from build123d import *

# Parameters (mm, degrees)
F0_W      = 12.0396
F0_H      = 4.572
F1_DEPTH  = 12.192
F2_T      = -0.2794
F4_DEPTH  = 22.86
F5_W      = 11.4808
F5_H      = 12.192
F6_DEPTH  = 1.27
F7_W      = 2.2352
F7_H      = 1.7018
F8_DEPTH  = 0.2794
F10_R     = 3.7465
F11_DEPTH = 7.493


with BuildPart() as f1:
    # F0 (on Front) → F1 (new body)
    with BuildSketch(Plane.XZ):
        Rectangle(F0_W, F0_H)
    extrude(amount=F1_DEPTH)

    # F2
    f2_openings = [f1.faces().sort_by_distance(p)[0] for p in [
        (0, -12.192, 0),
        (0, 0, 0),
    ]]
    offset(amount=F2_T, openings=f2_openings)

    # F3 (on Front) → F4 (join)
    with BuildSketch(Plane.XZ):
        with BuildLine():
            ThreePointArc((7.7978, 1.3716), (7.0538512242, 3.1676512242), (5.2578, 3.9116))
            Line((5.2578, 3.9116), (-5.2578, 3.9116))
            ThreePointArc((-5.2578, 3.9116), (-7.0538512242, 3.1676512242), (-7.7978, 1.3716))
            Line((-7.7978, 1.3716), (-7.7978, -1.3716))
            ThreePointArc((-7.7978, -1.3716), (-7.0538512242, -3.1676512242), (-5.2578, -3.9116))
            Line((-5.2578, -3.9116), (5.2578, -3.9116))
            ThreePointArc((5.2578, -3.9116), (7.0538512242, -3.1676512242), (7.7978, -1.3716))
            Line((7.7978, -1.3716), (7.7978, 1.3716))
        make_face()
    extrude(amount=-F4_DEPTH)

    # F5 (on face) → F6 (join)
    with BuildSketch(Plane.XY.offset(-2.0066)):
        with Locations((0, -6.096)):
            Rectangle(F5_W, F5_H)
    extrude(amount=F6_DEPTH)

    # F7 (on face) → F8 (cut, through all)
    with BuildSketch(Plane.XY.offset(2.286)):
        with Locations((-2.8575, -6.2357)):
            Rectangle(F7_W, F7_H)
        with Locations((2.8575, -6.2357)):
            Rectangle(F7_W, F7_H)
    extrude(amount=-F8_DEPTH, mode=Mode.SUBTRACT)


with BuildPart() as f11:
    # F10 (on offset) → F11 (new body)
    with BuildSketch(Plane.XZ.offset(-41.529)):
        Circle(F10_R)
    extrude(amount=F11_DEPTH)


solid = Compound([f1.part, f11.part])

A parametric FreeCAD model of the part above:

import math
import FreeCAD as App
import Part
import Sketcher
from FreeCAD import Vector
Q = App.Units.Quantity


def faces_at(feature, points):
    """Names of the faces that lie closest to the given points."""
    faces = feature.Shape.Faces
    near = lambda p: min(range(len(faces)), key=lambda i: faces[i].distToShape(Part.Vertex(*p))[0])
    return sorted({f"Face{near(p) + 1}" for p in points})

doc = App.newDocument("Part")
params = doc.addObject("Spreadsheet::Sheet", "Params")
for row, (alias, value) in enumerate([
    ("sketch1_height", "0.18 in"),
    ("sketch1_width", "0.474 in"),
    ("pad1_length", "0.48 in"),
    ("thickness_wall", "0.011 in"),
    ("sketch2_radius", "0.1 in"),
    ("sketch2_width", "0.414 in"),
    ("sketch2_height", "0.108 in"),
    ("pad2_length", "0.9 in"),
    ("sketch3_height", "0.48 in"),
    ("sketch3_width", "0.452 in"),
    ("pad3_length", "0.05 in"),
    ("sketch4_width", "0.088 in"),
    ("sketch4_height", "0.067 in"),
    ("pocket1_length", "0.011 in"),
    ("sketch5_diameter", "0.295 in"),
    ("pad4_length", "0.295 in"),
], start=1):
    params.set(f"A{row}", alias)
    params.set(f"B{row}", "=" + value)
    params.setAlias(f"B{row}", alias)

body = doc.addObject("PartDesign::Body", "Body")

# Sketch on XZ plane
sketch1 = body.newObject("Sketcher::SketchObject", "Sketch")
sketch1.AttachmentSupport = (doc.getObject("XZ_Plane"), [""])
sketch1.MapMode = "FlatFace"
sketch1.addGeometry(Part.LineSegment(Vector(-6, 2.3, 0), Vector(-6, -2.3, 0)), False)
sketch1.addGeometry(Part.LineSegment(Vector(-6, -2.3, 0), Vector(6, -2.3, 0)), False)
sketch1.addGeometry(Part.LineSegment(Vector(6, -2.3, 0), Vector(6, 2.3, 0)), False)
sketch1.addGeometry(Part.LineSegment(Vector(6, 2.3, 0), Vector(-6, 2.3, 0)), False)
sketch1.addConstraint(Sketcher.Constraint("Coincident", 0, 2, 1, 1))
sketch1.addConstraint(Sketcher.Constraint("Coincident", 1, 2, 2, 1))
sketch1.addConstraint(Sketcher.Constraint("Coincident", 2, 2, 3, 1))
sketch1.addConstraint(Sketcher.Constraint("Coincident", 3, 2, 0, 1))
sketch1.addConstraint(Sketcher.Constraint("Vertical", 0))
sketch1.addConstraint(Sketcher.Constraint("Horizontal", 1))
sketch1.addConstraint(Sketcher.Constraint("Vertical", 2))
sketch1.addConstraint(Sketcher.Constraint("Horizontal", 3))
sketch1.addConstraint(Sketcher.Constraint("Symmetric", 0, 2, 2, 2, -1, 1))
sketch1.addConstraint(Sketcher.Constraint("DistanceY", 0, 2, 0, 1, Q("0.18 in")))
sketch1.addConstraint(Sketcher.Constraint("DistanceX", 1, 1, 1, 2, Q("0.474 in")))
sketch1.setExpression("Constraints[9]", "Params.sketch1_height")
sketch1.setExpression("Constraints[10]", "Params.sketch1_width")
pad1 = body.newObject("PartDesign::Pad", "Pad")
pad1.Profile = sketch1
pad1.setExpression("Length", "Params.pad1_length")
doc.recompute()

thickness = body.newObject("PartDesign::Thickness", "Thickness")
thickness.Base = (pad1, faces_at(pad1, [(0, -12.192, 0), (0, 0, 0)]))
thickness.setExpression("Value", "Params.thickness_wall")
thickness.Reversed = True
thickness.Join = "Arc"

# Sketch on XZ plane
sketch2 = body.newObject("Sketcher::SketchObject", "Sketch001")
sketch2.AttachmentSupport = (doc.getObject("XZ_Plane"), [""])
sketch2.MapMode = "FlatFace"
sketch2.addGeometry(Part.ArcOfCircle(Part.Circle(Vector(5.3, 1.4, 0), Vector(0, 0, 1), 2.5), math.radians(0), math.radians(90)), False)
sketch2.addGeometry(Part.LineSegment(Vector(5.3, 3.9, 0), Vector(-5.3, 3.9, 0)), False)
sketch2.addGeometry(Part.ArcOfCircle(Part.Circle(Vector(-5.3, 1.4, 0), Vector(0, 0, 1), 2.5), math.radians(90), math.radians(180)), False)
sketch2.addGeometry(Part.LineSegment(Vector(-7.8, 1.4, 0), Vector(-7.8, -1.4, 0)), False)
sketch2.addGeometry(Part.ArcOfCircle(Part.Circle(Vector(-5.3, -1.4, 0), Vector(0, 0, 1), 2.5), math.radians(180), math.radians(270)), False)
sketch2.addGeometry(Part.LineSegment(Vector(-5.3, -3.9, 0), Vector(5.3, -3.9, 0)), False)
sketch2.addGeometry(Part.ArcOfCircle(Part.Circle(Vector(5.3, -1.4, 0), Vector(0, 0, 1), 2.5), math.radians(-90), math.radians(0)), False)
sketch2.addGeometry(Part.LineSegment(Vector(7.8, -1.4, 0), Vector(7.8, 1.4, 0)), False)
sketch2.addConstraint(Sketcher.Constraint("Tangent", 0, 2, 1, 1))
sketch2.addConstraint(Sketcher.Constraint("Tangent", 1, 2, 2, 1))
sketch2.addConstraint(Sketcher.Constraint("Tangent", 2, 2, 3, 1))
sketch2.addConstraint(Sketcher.Constraint("Tangent", 3, 2, 4, 1))
sketch2.addConstraint(Sketcher.Constraint("Tangent", 4, 2, 5, 1))
sketch2.addConstraint(Sketcher.Constraint("Tangent", 5, 2, 6, 1))
sketch2.addConstraint(Sketcher.Constraint("Tangent", 6, 2, 7, 1))
sketch2.addConstraint(Sketcher.Constraint("Tangent", 7, 2, 0, 1))
sketch2.addConstraint(Sketcher.Constraint("Horizontal", 1))
sketch2.addConstraint(Sketcher.Constraint("Vertical", 3))
sketch2.addConstraint(Sketcher.Constraint("Horizontal", 5))
sketch2.addConstraint(Sketcher.Constraint("Vertical", 7))
sketch2.addConstraint(Sketcher.Constraint("Equal", 0, 2))
sketch2.addConstraint(Sketcher.Constraint("Equal", 2, 4))
sketch2.addConstraint(Sketcher.Constraint("Equal", 4, 6))
sketch2.addConstraint(Sketcher.Constraint("Symmetric", 0, 3, 4, 3, -1, 1))
sketch2.addConstraint(Sketcher.Constraint("Radius", 0, Q("0.1 in")))
sketch2.addConstraint(Sketcher.Constraint("DistanceX", 1, 2, 1, 1, Q("0.414 in")))
sketch2.addConstraint(Sketcher.Constraint("DistanceY", 3, 2, 3, 1, Q("0.108 in")))
sketch2.setExpression("Constraints[16]", "Params.sketch2_radius")
sketch2.setExpression("Constraints[17]", "Params.sketch2_width")
sketch2.setExpression("Constraints[18]", "Params.sketch2_height")
pad2 = body.newObject("PartDesign::Pad", "Pad001")
pad2.Profile = sketch2
pad2.setExpression("Length", "Params.pad2_length")
pad2.Reversed = True

# Sketch on XY plane
sketch3 = body.newObject("Sketcher::SketchObject", "Sketch002")
sketch3.AttachmentSupport = (doc.getObject("XY_Plane"), [""])
sketch3.MapMode = "FlatFace"
sketch3.AttachmentOffset = App.Placement(Vector(0, 0, -0.079 * 25.4), App.Rotation())
sketch3.addGeometry(Part.LineSegment(Vector(-6, 0, 0), Vector(-6, -12, 0)), False)
sketch3.addGeometry(Part.LineSegment(Vector(-6, -12, 0), Vector(6, -12, 0)), False)
sketch3.addGeometry(Part.LineSegment(Vector(6, -12, 0), Vector(6, 0, 0)), False)
sketch3.addGeometry(Part.LineSegment(Vector(6, 0, 0), Vector(-6, 0, 0)), False)
sketch3.addConstraint(Sketcher.Constraint("Coincident", 0, 2, 1, 1))
sketch3.addConstraint(Sketcher.Constraint("Coincident", 1, 2, 2, 1))
sketch3.addConstraint(Sketcher.Constraint("Coincident", 2, 2, 3, 1))
sketch3.addConstraint(Sketcher.Constraint("Coincident", 3, 2, 0, 1))
sketch3.addConstraint(Sketcher.Constraint("Vertical", 0))
sketch3.addConstraint(Sketcher.Constraint("Horizontal", 1))
sketch3.addConstraint(Sketcher.Constraint("Vertical", 2))
sketch3.addConstraint(Sketcher.Constraint("Horizontal", 3))
sketch3.addConstraint(Sketcher.Constraint("Symmetric", 2, 2, 3, 2, -1, 1))
sketch3.addConstraint(Sketcher.Constraint("DistanceY", 0, 2, 0, 1, Q("0.48 in")))
sketch3.addConstraint(Sketcher.Constraint("DistanceX", 1, 1, 1, 2, Q("0.452 in")))
sketch3.setExpression("Constraints[9]", "Params.sketch3_height")
sketch3.setExpression("Constraints[10]", "Params.sketch3_width")
pad3 = body.newObject("PartDesign::Pad", "Pad002")
pad3.Profile = sketch3
pad3.setExpression("Length", "Params.pad3_length")

# Sketch on XY plane
sketch4 = body.newObject("Sketcher::SketchObject", "Sketch003")
sketch4.AttachmentSupport = (doc.getObject("XY_Plane"), [""])
sketch4.MapMode = "FlatFace"
sketch4.AttachmentOffset = App.Placement(Vector(0, 0, 0.09 * 25.4), App.Rotation())
sketch4.addGeometry(Part.LineSegment(Vector(-4, -5.4, 0), Vector(-4, -7.1, 0)), False)
sketch4.addGeometry(Part.LineSegment(Vector(-4, -7.1, 0), Vector(-1.7, -7.1, 0)), False)
sketch4.addGeometry(Part.LineSegment(Vector(-1.7, -7.1, 0), Vector(-1.7, -5.4, 0)), False)
sketch4.addGeometry(Part.LineSegment(Vector(-1.7, -5.4, 0), Vector(-4, -5.4, 0)), False)
sketch4.addGeometry(Part.LineSegment(Vector(1.7, -5.4, 0), Vector(1.7, -7.1, 0)), False)
sketch4.addGeometry(Part.LineSegment(Vector(1.7, -7.1, 0), Vector(4, -7.1, 0)), False)
sketch4.addGeometry(Part.LineSegment(Vector(4, -7.1, 0), Vector(4, -5.4, 0)), False)
sketch4.addGeometry(Part.LineSegment(Vector(4, -5.4, 0), Vector(1.7, -5.4, 0)), False)
sketch4.addConstraint(Sketcher.Constraint("Coincident", 0, 2, 1, 1))
sketch4.addConstraint(Sketcher.Constraint("Coincident", 1, 2, 2, 1))
sketch4.addConstraint(Sketcher.Constraint("Coincident", 2, 2, 3, 1))
sketch4.addConstraint(Sketcher.Constraint("Coincident", 3, 2, 0, 1))
sketch4.addConstraint(Sketcher.Constraint("Coincident", 4, 2, 5, 1))
sketch4.addConstraint(Sketcher.Constraint("Coincident", 5, 2, 6, 1))
sketch4.addConstraint(Sketcher.Constraint("Coincident", 6, 2, 7, 1))
sketch4.addConstraint(Sketcher.Constraint("Coincident", 7, 2, 4, 1))
sketch4.addConstraint(Sketcher.Constraint("Vertical", 0))
sketch4.addConstraint(Sketcher.Constraint("Horizontal", 1))
sketch4.addConstraint(Sketcher.Constraint("Vertical", 2))
sketch4.addConstraint(Sketcher.Constraint("Horizontal", 3))
sketch4.addConstraint(Sketcher.Constraint("Vertical", 4))
sketch4.addConstraint(Sketcher.Constraint("Horizontal", 5))
sketch4.addConstraint(Sketcher.Constraint("Vertical", 6))
sketch4.addConstraint(Sketcher.Constraint("Horizontal", 7))
sketch4.addConstraint(Sketcher.Constraint("Symmetric", 1, 2, 4, 2, -2))
sketch4.addConstraint(Sketcher.Constraint("Symmetric", 3, 2, 6, 2, -2))
sketch4.addConstraint(Sketcher.Constraint("DistanceX", 1, 1, 1, 2, Q("0.088 in")))
sketch4.addConstraint(Sketcher.Constraint("DistanceY", 0, 2, 0, 1, Q("0.067 in")))
sketch4.addConstraint(Sketcher.Constraint("DistanceY", 0, 2, -1, 1, Q("0.279 in")))
sketch4.addConstraint(Sketcher.Constraint("DistanceX", 1, 2, 4, 2, Q("0.137 in")))
sketch4.setExpression("Constraints[18]", "Params.sketch4_width")
sketch4.setExpression("Constraints[19]", "Params.sketch4_height")
pocket1 = body.newObject("PartDesign::Pocket", "Pocket")
pocket1.Profile = sketch4
pocket1.setExpression("Length", "Params.pocket1_length")
body2 = doc.addObject("PartDesign::Body", "Body001")

# Sketch on XZ plane
sketch5 = body2.newObject("Sketcher::SketchObject", "Sketch004")
sketch5.AttachmentSupport = (doc.getObject("XZ_Plane001"), [""])
sketch5.MapMode = "FlatFace"
sketch5.AttachmentOffset = App.Placement(Vector(0, 0, -1.635 * 25.4), App.Rotation())
sketch5.addGeometry(Part.Circle(Vector(0, 0, 0), Vector(0, 0, 1), 3.7), False)
sketch5.addConstraint(Sketcher.Constraint("Coincident", 0, 3, -1, 1))
sketch5.addConstraint(Sketcher.Constraint("Diameter", 0, Q("0.295 in")))
sketch5.setExpression("Constraints[1]", "Params.sketch5_diameter")
pad4 = body2.newObject("PartDesign::Pad", "Pad003")
pad4.Profile = sketch5
pad4.setExpression("Length", "Params.pad4_length")

doc.recompute()
